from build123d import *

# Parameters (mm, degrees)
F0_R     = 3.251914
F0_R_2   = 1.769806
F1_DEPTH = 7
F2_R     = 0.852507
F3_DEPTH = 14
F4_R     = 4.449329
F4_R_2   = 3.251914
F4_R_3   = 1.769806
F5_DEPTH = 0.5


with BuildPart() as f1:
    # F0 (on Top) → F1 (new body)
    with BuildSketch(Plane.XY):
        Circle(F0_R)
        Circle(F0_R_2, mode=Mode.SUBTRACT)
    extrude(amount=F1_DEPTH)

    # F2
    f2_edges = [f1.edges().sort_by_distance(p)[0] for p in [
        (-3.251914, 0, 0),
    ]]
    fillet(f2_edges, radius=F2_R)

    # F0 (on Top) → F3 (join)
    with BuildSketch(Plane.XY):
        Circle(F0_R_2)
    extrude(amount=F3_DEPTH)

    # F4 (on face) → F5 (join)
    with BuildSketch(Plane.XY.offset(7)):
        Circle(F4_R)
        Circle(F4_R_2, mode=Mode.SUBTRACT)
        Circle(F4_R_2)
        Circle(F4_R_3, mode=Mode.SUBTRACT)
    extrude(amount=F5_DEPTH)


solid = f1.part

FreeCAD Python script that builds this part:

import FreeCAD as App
import Part
import Sketcher

V = App.Vector
Q = App.Units.Quantity


def edges_at(feature, points):
    """Names of the edges that pass closest to the given points."""
    edges = feature.Shape.Edges
    near = lambda p: min(range(len(edges)), key=lambda i: edges[i].distToShape(Part.Vertex(*p))[0])
    return sorted({f"Edge{near(p) + 1}" for p in points})

doc = App.newDocument("Part")
body = doc.addObject("PartDesign::Body", "Body")

sketch1 = doc.addObject("Sketcher::SketchObject", "Sketch")
body.addObject(sketch1)
sketch1.AttachmentSupport = (doc.XY_Plane, [""])
sketch1.MapMode = "FlatFace"
sketch1.addGeometry([
    Part.Circle(V(0, 0, 0), V(0, 0, 1), 3.3),
    Part.Circle(V(0, 0, 0), V(0, 0, 1), 1.8),
], False)
sketch1.addConstraint([
    Sketcher.Constraint("Coincident", 0, 3, -1, 1),
    Sketcher.Constraint("Coincident", 1, 3, -1, 1),
    Sketcher.Constraint("Diameter", 0, Q("6.503828 mm")),
    Sketcher.Constraint("Diameter", 1, Q("3.539612 mm")),
])
pad1 = doc.addObject("PartDesign::Pad", "Pad")
body.addObject(pad1)
pad1.Profile = sketch1
pad1.Length = 7
doc.recompute()

fillet = doc.addObject("PartDesign::Fillet", "Fillet")
body.addObject(fillet)
fillet.Base = (pad1, edges_at(pad1, [(-3.252, 0, 0)]))
fillet.Radius = 0.852507

sketch2 = doc.addObject("Sketcher::SketchObject", "Sketch001")
body.addObject(sketch2)
sketch2.AttachmentSupport = (doc.XY_Plane, [""])
sketch2.MapMode = "FlatFace"
sketch2.addGeometry(Part.Circle(V(0, 0, 0), V(0, 0, 1), 1.8), False)
sketch2.addConstraint([
    Sketcher.Constraint("Coincident", 0, 3, -1, 1),
    Sketcher.Constraint("Diameter", 0, Q("3.539612 mm")),
])
pad2 = doc.addObject("PartDesign::Pad", "Pad001")
body.addObject(pad2)
pad2.Profile = sketch2
pad2.Length = 14

sketch3 = doc.addObject("Sketcher::SketchObject", "Sketch002")
body.addObject(sketch3)
sketch3.AttachmentSupport = (doc.XY_Plane, [""])
sketch3.MapMode = "FlatFace"
sketch3.AttachmentOffset = App.Placement(V(0, 0, 7), App.Rotation())
sketch3.addGeometry([
    Part.Circle(V(0, 0, 0), V(0, 0, 1), 4.4),
    Part.Circle(V(0, 0, 0), V(0, 0, 1), 1.8),
], False)
sketch3.addConstraint([
    Sketcher.Constraint("Coincident", 0, 3, -1, 1),
    Sketcher.Constraint("Coincident", 1, 3, -1, 1),
    Sketcher.Constraint("Diameter", 1, Q("3.539612 mm")),
    Sketcher.Constraint("Diameter", 0, Q("8.898658 mm")),
])
pad3 = doc.addObject("PartDesign::Pad", "Pad002")
body.addObject(pad3)
pad3.Profile = sketch3
pad3.Length = 0.5

doc.recompute()
